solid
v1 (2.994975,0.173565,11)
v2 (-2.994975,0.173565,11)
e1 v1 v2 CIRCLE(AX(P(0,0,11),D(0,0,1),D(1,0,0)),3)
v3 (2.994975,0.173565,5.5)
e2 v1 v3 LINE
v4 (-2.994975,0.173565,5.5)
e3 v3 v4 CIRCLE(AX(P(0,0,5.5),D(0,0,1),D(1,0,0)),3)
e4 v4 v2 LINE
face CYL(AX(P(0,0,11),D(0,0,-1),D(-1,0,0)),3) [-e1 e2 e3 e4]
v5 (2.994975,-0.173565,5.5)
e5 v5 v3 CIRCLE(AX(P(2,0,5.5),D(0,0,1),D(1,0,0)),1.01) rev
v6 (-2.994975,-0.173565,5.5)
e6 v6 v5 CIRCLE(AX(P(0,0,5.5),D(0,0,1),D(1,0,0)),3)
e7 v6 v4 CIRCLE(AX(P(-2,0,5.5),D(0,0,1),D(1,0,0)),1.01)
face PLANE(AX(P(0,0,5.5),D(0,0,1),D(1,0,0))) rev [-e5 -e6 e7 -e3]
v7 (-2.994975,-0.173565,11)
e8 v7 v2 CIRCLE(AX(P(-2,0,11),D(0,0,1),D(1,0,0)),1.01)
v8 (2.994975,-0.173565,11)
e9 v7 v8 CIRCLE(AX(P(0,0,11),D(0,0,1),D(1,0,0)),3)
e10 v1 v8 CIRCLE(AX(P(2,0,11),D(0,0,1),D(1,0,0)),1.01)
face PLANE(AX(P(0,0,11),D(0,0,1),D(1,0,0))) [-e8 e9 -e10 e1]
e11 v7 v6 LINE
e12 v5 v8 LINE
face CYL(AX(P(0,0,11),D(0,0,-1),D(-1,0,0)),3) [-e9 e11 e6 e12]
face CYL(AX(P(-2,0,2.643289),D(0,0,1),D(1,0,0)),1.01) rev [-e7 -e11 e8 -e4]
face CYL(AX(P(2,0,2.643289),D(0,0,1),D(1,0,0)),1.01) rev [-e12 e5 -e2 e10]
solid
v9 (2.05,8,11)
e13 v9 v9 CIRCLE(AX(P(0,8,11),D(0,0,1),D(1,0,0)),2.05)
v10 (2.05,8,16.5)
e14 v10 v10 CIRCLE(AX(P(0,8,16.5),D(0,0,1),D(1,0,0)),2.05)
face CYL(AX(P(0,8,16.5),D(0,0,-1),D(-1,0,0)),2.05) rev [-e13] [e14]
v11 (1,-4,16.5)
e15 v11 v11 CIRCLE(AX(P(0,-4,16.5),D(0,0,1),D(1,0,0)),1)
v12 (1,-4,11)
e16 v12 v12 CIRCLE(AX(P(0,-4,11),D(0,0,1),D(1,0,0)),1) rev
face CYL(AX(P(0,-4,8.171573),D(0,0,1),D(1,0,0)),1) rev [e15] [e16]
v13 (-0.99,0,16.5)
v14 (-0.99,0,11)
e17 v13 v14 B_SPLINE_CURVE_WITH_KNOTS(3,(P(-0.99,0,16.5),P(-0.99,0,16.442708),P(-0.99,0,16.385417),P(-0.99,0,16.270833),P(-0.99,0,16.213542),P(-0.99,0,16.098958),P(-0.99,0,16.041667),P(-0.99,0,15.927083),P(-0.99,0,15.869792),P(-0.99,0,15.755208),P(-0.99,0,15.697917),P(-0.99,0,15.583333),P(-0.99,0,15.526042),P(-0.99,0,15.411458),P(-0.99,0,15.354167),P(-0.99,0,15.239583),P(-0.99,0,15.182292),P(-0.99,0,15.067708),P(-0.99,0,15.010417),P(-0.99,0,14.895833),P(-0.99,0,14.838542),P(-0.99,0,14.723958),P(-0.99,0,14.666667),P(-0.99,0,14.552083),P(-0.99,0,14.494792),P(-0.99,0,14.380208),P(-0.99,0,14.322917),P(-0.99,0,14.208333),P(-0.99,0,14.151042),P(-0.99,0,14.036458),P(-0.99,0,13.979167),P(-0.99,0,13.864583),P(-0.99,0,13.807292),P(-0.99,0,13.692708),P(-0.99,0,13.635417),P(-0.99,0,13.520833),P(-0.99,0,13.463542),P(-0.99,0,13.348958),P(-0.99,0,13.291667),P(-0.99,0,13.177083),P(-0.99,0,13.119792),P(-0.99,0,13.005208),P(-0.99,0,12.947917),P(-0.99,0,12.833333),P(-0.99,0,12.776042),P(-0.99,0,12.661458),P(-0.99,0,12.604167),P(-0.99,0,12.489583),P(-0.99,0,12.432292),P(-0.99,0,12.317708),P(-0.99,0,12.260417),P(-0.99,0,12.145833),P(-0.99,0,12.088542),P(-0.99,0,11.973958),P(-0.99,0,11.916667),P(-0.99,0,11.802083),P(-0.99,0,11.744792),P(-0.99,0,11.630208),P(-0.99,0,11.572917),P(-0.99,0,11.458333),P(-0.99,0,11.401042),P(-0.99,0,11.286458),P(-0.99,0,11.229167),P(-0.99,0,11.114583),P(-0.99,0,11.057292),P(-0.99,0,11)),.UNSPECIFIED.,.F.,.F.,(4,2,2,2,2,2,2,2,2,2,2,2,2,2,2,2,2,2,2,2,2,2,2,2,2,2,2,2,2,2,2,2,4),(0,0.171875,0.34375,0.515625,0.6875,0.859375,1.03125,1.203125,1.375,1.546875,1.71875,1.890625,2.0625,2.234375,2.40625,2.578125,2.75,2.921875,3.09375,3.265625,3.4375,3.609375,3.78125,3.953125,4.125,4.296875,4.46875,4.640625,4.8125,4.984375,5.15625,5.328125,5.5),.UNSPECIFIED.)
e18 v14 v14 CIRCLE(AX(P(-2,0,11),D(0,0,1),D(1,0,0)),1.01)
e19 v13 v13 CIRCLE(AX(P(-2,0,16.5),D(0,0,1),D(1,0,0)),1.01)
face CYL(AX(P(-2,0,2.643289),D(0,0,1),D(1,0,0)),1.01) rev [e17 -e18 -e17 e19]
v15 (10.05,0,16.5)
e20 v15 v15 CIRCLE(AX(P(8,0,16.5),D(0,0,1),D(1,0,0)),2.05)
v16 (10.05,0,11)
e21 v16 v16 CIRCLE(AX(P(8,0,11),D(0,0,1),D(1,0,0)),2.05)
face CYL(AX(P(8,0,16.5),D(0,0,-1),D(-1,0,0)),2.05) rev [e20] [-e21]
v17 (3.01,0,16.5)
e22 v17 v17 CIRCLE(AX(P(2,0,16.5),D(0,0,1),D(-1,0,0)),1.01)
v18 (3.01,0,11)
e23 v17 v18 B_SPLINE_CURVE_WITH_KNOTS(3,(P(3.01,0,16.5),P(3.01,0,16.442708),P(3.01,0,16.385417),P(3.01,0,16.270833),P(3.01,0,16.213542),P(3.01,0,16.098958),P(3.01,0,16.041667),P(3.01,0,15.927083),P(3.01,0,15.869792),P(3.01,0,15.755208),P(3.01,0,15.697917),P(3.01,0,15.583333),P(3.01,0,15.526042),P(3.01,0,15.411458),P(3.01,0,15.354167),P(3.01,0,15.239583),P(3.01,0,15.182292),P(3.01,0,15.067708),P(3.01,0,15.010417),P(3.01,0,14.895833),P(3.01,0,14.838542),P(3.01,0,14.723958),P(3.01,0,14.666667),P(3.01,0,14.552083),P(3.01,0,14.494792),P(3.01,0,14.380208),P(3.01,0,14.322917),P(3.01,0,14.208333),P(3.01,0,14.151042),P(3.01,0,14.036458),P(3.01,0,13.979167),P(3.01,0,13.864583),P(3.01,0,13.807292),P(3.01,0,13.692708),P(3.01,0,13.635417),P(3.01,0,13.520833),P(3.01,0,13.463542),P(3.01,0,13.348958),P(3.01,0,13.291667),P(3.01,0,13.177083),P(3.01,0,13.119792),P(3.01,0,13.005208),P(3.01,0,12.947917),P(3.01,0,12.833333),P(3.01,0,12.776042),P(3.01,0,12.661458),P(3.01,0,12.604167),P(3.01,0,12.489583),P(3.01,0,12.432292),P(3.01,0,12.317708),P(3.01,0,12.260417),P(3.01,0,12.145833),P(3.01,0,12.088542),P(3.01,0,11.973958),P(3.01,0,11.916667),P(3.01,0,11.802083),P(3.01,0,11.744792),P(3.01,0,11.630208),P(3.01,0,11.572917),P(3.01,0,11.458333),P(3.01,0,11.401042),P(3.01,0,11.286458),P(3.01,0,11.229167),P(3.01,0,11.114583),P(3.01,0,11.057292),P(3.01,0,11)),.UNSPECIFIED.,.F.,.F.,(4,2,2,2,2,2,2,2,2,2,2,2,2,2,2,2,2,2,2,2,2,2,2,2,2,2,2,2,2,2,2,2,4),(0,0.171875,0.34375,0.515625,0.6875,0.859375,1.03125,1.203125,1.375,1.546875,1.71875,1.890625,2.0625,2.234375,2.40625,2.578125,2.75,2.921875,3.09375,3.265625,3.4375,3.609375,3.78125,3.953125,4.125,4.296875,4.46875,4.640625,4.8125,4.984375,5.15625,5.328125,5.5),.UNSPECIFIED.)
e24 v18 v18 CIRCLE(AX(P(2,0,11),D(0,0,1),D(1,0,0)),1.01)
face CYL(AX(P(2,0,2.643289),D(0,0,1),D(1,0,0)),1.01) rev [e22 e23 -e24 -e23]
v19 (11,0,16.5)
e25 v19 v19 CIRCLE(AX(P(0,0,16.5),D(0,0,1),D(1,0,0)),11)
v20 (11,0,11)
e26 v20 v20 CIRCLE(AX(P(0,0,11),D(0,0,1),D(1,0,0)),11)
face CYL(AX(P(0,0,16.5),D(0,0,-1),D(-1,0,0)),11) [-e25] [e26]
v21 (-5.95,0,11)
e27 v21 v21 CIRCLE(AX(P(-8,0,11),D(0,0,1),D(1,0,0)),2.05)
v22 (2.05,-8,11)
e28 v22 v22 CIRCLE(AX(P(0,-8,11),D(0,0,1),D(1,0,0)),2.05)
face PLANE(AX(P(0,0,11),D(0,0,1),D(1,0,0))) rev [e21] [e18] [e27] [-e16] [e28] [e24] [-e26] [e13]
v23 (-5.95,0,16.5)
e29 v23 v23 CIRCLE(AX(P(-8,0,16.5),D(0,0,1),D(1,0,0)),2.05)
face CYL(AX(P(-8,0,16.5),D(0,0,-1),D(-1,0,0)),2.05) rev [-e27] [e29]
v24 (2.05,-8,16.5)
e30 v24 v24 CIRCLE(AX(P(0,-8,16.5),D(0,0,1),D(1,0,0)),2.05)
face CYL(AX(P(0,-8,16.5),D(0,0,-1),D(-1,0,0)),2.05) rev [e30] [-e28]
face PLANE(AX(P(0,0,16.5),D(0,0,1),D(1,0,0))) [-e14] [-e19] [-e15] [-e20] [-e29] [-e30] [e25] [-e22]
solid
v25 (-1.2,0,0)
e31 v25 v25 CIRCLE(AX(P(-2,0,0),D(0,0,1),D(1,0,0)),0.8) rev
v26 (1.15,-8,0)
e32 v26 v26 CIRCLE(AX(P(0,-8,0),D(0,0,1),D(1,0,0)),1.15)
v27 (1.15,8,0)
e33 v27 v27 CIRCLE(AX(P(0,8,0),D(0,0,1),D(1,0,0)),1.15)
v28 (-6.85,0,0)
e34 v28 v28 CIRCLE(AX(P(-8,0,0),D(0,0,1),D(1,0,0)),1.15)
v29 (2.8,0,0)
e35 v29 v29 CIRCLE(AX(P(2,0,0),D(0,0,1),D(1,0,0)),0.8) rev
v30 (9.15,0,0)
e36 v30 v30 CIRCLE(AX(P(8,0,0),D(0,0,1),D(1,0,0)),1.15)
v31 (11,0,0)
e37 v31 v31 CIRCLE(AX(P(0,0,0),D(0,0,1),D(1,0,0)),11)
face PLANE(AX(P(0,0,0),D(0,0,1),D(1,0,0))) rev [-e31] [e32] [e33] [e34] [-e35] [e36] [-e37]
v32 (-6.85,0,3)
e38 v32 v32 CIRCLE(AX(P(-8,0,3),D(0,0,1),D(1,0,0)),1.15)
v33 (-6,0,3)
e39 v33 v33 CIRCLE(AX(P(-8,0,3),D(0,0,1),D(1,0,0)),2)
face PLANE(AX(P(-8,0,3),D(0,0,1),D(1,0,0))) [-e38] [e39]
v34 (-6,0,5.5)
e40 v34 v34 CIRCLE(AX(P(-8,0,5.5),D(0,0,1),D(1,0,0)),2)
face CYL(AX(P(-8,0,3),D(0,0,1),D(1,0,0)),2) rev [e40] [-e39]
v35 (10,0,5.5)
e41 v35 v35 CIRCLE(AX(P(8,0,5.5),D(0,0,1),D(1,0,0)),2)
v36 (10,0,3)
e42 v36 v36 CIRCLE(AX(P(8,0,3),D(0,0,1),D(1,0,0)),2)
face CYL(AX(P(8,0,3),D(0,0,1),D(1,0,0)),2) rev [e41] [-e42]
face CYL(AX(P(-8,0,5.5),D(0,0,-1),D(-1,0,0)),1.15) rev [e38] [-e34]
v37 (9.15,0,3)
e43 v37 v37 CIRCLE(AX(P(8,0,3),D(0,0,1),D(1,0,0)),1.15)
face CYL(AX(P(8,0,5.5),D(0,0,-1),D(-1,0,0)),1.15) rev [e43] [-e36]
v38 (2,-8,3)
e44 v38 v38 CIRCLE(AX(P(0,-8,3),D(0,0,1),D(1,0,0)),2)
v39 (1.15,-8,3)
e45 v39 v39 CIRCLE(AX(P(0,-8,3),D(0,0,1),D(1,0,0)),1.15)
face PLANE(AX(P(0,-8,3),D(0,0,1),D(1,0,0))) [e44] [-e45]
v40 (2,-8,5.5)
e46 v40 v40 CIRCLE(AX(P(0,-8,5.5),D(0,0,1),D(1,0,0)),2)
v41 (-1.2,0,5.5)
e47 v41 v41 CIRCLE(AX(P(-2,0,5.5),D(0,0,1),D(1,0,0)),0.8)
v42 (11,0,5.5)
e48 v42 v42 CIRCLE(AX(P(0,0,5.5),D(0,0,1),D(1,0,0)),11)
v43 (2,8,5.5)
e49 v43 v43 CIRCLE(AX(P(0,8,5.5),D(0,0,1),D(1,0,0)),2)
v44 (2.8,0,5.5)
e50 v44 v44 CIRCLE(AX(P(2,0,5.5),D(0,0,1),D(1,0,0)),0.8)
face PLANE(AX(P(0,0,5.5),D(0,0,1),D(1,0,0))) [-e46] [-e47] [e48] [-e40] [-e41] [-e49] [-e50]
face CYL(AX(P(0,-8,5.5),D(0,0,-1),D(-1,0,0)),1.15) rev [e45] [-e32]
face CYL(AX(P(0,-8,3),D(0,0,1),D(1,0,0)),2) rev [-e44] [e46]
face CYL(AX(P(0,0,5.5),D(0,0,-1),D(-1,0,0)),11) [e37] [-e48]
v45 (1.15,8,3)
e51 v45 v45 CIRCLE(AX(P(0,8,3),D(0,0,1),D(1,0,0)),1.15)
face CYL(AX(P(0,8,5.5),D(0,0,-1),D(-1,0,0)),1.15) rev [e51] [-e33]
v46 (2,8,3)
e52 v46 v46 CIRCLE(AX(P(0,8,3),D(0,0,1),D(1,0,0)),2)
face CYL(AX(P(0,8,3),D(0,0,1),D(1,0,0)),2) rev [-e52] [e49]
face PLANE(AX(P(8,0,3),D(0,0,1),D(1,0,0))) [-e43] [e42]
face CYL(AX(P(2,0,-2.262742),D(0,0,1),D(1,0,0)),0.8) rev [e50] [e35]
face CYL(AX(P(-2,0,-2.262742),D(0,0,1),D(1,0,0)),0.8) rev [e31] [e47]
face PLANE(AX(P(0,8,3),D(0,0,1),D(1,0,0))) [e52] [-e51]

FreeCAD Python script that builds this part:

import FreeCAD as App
import Part
import Sketcher

V = App.Vector

doc = App.newDocument("Part")
body = doc.addObject("PartDesign::Body", "Body")

# Sketch on XY plane
sketch1 = body.newObject("Sketcher::SketchObject", "Sketch")
sketch1.AttachmentSupport = (doc.getObject("XY_Plane"), [""])
sketch1.MapMode = "FlatFace"
sketch1.addGeometry([
    Part.Circle(V(0, 0, 0), V(0, 0, 1), 11),  # 0
    Part.Circle(V(0, -8, 0), V(0, 0, 1), 1.1),  # 1
    Part.Circle(V(-8, 0, 0), V(0, 0, 1), 1.1),  # 2
    Part.Circle(V(8, 0, 0), V(0, 0, 1), 1.1),  # 3
    Part.Circle(V(0, 8, 0), V(0, 0, 1), 1.1),  # 4
], False)
sketch1.addConstraint([
    Sketcher.Constraint("Coincident", 0, 3, -1, 1),
    Sketcher.Constraint("Equal", 1, 2),
    Sketcher.Constraint("Equal", 2, 3),
    Sketcher.Constraint("Equal", 3, 4),
    Sketcher.Constraint("Symmetric", 2, 3, 3, 3, -1, 1),
    Sketcher.Constraint("Symmetric", 1, 3, 4, 3, -1, 1),
    Sketcher.Constraint("PointOnObject", 1, 3, -2),
    Sketcher.Constraint("PointOnObject", 2, 3, -1),
    Sketcher.Constraint("Diameter", 0, 22.0),
    Sketcher.Constraint("Diameter", 1, 2.3),
    Sketcher.Constraint("DistanceY", 1, 3, -1, 1, 8.0),
    Sketcher.Constraint("DistanceX", 2, 3, -1, 1, 8.0),
])
pad1 = body.newObject("PartDesign::Pad", "Pad")
pad1.Profile = sketch1
pad1.Length = 5.5

# Sketch on XY plane
sketch2 = body.newObject("Sketcher::SketchObject", "Sketch001")
sketch2.AttachmentSupport = (doc.getObject("XY_Plane"), [""])
sketch2.MapMode = "FlatFace"
sketch2.AttachmentOffset = App.Placement(V(0, 0, 5.5), App.Rotation())
sketch2.addGeometry([
    Part.Circle(V(-2, 0, 0), V(0, 0, 1), 0.8),
    Part.Circle(V(2, 0, 0), V(0, 0, 1), 0.8),
], False)
sketch2.addConstraint([
    Sketcher.Constraint("Equal", 0, 1),
    Sketcher.Constraint("Symmetric", 0, 3, 1, 3, -1, 1),
    Sketcher.Constraint("PointOnObject", 0, 3, -1),
    Sketcher.Constraint("Diameter", 0, 1.6),
    Sketcher.Constraint("DistanceX", 0, 3, -1, 1, 2.0),
])
pocket1 = body.newObject("PartDesign::Pocket", "Pocket")
pocket1.Profile = sketch2
pocket1.Length = 5.5

# Sketch on XY plane
sketch3 = body.newObject("Sketcher::SketchObject", "Sketch002")
sketch3.AttachmentSupport = (doc.getObject("XY_Plane"), [""])
sketch3.MapMode = "FlatFace"
sketch3.AttachmentOffset = App.Placement(V(0, 0, 5.5), App.Rotation())
sketch3.addGeometry([
    Part.Circle(V(-8, 0, 0), V(0, 0, 1), 2),
    Part.Circle(V(0, 8, 0), V(0, 0, 1), 2),
    Part.Circle(V(8, 0, 0), V(0, 0, 1), 2),
    Part.Circle(V(0, -8, 0), V(0, 0, 1), 2),
], False)
sketch3.addConstraint([
    Sketcher.Constraint("Equal", 0, 1),
    Sketcher.Constraint("Equal", 1, 2),
    Sketcher.Constraint("Equal", 2, 3),
    Sketcher.Constraint("Symmetric", 0, 3, 2, 3, -1, 1),
    Sketcher.Constraint("Symmetric", 1, 3, 3, 3, -1, 1),
    Sketcher.Constraint("PointOnObject", 0, 3, -1),
    Sketcher.Constraint("PointOnObject", 1, 3, -2),
    Sketcher.Constraint("Diameter", 0, 4.0),
    Sketcher.Constraint("DistanceX", 0, 3, -1, 1, 8.0),
    Sketcher.Constraint("DistanceY", -1, 1, 1, 3, 8.0),
])
pocket2 = body.newObject("PartDesign::Pocket", "Pocket001")
pocket2.Profile = sketch3
pocket2.Length = 2.5
body2 = doc.addObject("PartDesign::Body", "Body001")

# Sketch on XY plane
sketch4 = body2.newObject("Sketcher::SketchObject", "Sketch003")
sketch4.AttachmentSupport = (doc.getObject("XY_Plane001"), [""])
sketch4.MapMode = "FlatFace"
sketch4.AttachmentOffset = App.Placement(V(0, 0, 5.5), App.Rotation())
sketch4.addGeometry(Part.Circle(V(0, 0, 0), V(0, 0, 1), 3), False)
sketch4.addConstraint([
    Sketcher.Constraint("Coincident", 0, 3, -1, 1),
    Sketcher.Constraint("Diameter", 0, 6.0),
])
pad2 = body2.newObject("PartDesign::Pad", "Pad001")
pad2.Profile = sketch4
pad2.Length = 5.5
body3 = doc.addObject("PartDesign::Body", "Body002")

# Sketch on XY plane
sketch5 = body3.newObject("Sketcher::SketchObject", "Sketch004")
sketch5.AttachmentSupport = (doc.getObject("XY_Plane002"), [""])
sketch5.MapMode = "FlatFace"
sketch5.AttachmentOffset = App.Placement(V(0, 0, 11), App.Rotation())
sketch5.addGeometry([
    Part.Circle(V(0, 0, 0), V(0, 0, 1), 11),  # 0
    Part.Circle(V(-8, 0, 0), V(0, 0, 1), 2),  # 1
    Part.Circle(V(0, -8, 0), V(0, 0, 1), 2),  # 2
    Part.Circle(V(8, 0, 0), V(0, 0, 1), 2),  # 3
    Part.Circle(V(0, 8, 0), V(0, 0, 1), 2),  # 4
], False)
sketch5.addConstraint([
    Sketcher.Constraint("Coincident", 0, 3, -1, 1),
    Sketcher.Constraint("Equal", 1, 2),
    Sketcher.Constraint("Equal", 2, 3),
    Sketcher.Constraint("Equal", 3, 4),
    Sketcher.Constraint("Symmetric", 1, 3, 3, 3, -1, 1),
    Sketcher.Constraint("Symmetric", 2, 3, 4, 3, -1, 1),
    Sketcher.Constraint("PointOnObject", 1, 3, -1),
    Sketcher.Constraint("PointOnObject", 2, 3, -2),
    Sketcher.Constraint("Diameter", 0, 22.0),
    Sketcher.Constraint("Diameter", 1, 4.1),
    Sketcher.Constraint("DistanceX", 1, 3, -1, 1, 8.0),
    Sketcher.Constraint("DistanceY", 2, 3, -1, 1, 8.0),
])
pad3 = body3.newObject("PartDesign::Pad", "Pad002")
pad3.Profile = sketch5
pad3.Length = 5.5
body4 = doc.addObject("PartDesign::Body", "Body003")
body4.AllowCompound = True

# Sketch on XY plane
sketch6 = body4.newObject("Sketcher::SketchObject", "Sketch005")
sketch6.AttachmentSupport = (doc.getObject("XY_Plane003"), [""])
sketch6.MapMode = "FlatFace"
sketch6.addGeometry([
    Part.Circle(V(-2, 0, 0), V(0, 0, 1), 1),
    Part.Circle(V(2, 0, 0), V(0, 0, 1), 1),
], False)
sketch6.addConstraint([
    Sketcher.Constraint("Equal", 0, 1),
    Sketcher.Constraint("Symmetric", 0, 3, 1, 3, -1, 1),
    Sketcher.Constraint("PointOnObject", 0, 3, -1),
    Sketcher.Constraint("Diameter", 0, 2.02),
    Sketcher.Constraint("DistanceX", 0, 3, -1, 1, 2.0),
])
pad4 = body4.newObject("PartDesign::Pad", "Pad003")
pad4.Profile = sketch6
pad4.Length = 16.5
doc.recompute()

body5 = doc.addObject("PartDesign::Body", "Body004")
body5.BaseFeature = body4
boolean = body2.newObject("PartDesign::Boolean", "Boolean")
boolean.Type = "Cut"
boolean.addObjects([body5])
doc.recompute()

boolean2 = body3.newObject("PartDesign::Boolean", "Boolean001")
boolean2.Type = "Cut"
boolean2.addObjects([body4])

# Sketch on XY plane
sketch7 = body3.newObject("Sketcher::SketchObject", "Sketch006")
sketch7.AttachmentSupport = (doc.getObject("XY_Plane002"), [""])
sketch7.MapMode = "FlatFace"
sketch7.AttachmentOffset = App.Placement(V(0, 0, 16.5), App.Rotation())
sketch7.addGeometry(Part.Circle(V(0, -4, 0), V(0, 0, 1), 1), False)
sketch7.addConstraint([
    Sketcher.Constraint("PointOnObject", 0, 3, -2),
    Sketcher.Constraint("Diameter", 0, 2.0),
    Sketcher.Constraint("DistanceY", 0, 3, -1, 1, 4.0),
])
pocket3 = body3.newObject("PartDesign::Pocket", "Pocket002")
pocket3.Profile = sketch7
pocket3.Length = 5.5

doc.recompute()
